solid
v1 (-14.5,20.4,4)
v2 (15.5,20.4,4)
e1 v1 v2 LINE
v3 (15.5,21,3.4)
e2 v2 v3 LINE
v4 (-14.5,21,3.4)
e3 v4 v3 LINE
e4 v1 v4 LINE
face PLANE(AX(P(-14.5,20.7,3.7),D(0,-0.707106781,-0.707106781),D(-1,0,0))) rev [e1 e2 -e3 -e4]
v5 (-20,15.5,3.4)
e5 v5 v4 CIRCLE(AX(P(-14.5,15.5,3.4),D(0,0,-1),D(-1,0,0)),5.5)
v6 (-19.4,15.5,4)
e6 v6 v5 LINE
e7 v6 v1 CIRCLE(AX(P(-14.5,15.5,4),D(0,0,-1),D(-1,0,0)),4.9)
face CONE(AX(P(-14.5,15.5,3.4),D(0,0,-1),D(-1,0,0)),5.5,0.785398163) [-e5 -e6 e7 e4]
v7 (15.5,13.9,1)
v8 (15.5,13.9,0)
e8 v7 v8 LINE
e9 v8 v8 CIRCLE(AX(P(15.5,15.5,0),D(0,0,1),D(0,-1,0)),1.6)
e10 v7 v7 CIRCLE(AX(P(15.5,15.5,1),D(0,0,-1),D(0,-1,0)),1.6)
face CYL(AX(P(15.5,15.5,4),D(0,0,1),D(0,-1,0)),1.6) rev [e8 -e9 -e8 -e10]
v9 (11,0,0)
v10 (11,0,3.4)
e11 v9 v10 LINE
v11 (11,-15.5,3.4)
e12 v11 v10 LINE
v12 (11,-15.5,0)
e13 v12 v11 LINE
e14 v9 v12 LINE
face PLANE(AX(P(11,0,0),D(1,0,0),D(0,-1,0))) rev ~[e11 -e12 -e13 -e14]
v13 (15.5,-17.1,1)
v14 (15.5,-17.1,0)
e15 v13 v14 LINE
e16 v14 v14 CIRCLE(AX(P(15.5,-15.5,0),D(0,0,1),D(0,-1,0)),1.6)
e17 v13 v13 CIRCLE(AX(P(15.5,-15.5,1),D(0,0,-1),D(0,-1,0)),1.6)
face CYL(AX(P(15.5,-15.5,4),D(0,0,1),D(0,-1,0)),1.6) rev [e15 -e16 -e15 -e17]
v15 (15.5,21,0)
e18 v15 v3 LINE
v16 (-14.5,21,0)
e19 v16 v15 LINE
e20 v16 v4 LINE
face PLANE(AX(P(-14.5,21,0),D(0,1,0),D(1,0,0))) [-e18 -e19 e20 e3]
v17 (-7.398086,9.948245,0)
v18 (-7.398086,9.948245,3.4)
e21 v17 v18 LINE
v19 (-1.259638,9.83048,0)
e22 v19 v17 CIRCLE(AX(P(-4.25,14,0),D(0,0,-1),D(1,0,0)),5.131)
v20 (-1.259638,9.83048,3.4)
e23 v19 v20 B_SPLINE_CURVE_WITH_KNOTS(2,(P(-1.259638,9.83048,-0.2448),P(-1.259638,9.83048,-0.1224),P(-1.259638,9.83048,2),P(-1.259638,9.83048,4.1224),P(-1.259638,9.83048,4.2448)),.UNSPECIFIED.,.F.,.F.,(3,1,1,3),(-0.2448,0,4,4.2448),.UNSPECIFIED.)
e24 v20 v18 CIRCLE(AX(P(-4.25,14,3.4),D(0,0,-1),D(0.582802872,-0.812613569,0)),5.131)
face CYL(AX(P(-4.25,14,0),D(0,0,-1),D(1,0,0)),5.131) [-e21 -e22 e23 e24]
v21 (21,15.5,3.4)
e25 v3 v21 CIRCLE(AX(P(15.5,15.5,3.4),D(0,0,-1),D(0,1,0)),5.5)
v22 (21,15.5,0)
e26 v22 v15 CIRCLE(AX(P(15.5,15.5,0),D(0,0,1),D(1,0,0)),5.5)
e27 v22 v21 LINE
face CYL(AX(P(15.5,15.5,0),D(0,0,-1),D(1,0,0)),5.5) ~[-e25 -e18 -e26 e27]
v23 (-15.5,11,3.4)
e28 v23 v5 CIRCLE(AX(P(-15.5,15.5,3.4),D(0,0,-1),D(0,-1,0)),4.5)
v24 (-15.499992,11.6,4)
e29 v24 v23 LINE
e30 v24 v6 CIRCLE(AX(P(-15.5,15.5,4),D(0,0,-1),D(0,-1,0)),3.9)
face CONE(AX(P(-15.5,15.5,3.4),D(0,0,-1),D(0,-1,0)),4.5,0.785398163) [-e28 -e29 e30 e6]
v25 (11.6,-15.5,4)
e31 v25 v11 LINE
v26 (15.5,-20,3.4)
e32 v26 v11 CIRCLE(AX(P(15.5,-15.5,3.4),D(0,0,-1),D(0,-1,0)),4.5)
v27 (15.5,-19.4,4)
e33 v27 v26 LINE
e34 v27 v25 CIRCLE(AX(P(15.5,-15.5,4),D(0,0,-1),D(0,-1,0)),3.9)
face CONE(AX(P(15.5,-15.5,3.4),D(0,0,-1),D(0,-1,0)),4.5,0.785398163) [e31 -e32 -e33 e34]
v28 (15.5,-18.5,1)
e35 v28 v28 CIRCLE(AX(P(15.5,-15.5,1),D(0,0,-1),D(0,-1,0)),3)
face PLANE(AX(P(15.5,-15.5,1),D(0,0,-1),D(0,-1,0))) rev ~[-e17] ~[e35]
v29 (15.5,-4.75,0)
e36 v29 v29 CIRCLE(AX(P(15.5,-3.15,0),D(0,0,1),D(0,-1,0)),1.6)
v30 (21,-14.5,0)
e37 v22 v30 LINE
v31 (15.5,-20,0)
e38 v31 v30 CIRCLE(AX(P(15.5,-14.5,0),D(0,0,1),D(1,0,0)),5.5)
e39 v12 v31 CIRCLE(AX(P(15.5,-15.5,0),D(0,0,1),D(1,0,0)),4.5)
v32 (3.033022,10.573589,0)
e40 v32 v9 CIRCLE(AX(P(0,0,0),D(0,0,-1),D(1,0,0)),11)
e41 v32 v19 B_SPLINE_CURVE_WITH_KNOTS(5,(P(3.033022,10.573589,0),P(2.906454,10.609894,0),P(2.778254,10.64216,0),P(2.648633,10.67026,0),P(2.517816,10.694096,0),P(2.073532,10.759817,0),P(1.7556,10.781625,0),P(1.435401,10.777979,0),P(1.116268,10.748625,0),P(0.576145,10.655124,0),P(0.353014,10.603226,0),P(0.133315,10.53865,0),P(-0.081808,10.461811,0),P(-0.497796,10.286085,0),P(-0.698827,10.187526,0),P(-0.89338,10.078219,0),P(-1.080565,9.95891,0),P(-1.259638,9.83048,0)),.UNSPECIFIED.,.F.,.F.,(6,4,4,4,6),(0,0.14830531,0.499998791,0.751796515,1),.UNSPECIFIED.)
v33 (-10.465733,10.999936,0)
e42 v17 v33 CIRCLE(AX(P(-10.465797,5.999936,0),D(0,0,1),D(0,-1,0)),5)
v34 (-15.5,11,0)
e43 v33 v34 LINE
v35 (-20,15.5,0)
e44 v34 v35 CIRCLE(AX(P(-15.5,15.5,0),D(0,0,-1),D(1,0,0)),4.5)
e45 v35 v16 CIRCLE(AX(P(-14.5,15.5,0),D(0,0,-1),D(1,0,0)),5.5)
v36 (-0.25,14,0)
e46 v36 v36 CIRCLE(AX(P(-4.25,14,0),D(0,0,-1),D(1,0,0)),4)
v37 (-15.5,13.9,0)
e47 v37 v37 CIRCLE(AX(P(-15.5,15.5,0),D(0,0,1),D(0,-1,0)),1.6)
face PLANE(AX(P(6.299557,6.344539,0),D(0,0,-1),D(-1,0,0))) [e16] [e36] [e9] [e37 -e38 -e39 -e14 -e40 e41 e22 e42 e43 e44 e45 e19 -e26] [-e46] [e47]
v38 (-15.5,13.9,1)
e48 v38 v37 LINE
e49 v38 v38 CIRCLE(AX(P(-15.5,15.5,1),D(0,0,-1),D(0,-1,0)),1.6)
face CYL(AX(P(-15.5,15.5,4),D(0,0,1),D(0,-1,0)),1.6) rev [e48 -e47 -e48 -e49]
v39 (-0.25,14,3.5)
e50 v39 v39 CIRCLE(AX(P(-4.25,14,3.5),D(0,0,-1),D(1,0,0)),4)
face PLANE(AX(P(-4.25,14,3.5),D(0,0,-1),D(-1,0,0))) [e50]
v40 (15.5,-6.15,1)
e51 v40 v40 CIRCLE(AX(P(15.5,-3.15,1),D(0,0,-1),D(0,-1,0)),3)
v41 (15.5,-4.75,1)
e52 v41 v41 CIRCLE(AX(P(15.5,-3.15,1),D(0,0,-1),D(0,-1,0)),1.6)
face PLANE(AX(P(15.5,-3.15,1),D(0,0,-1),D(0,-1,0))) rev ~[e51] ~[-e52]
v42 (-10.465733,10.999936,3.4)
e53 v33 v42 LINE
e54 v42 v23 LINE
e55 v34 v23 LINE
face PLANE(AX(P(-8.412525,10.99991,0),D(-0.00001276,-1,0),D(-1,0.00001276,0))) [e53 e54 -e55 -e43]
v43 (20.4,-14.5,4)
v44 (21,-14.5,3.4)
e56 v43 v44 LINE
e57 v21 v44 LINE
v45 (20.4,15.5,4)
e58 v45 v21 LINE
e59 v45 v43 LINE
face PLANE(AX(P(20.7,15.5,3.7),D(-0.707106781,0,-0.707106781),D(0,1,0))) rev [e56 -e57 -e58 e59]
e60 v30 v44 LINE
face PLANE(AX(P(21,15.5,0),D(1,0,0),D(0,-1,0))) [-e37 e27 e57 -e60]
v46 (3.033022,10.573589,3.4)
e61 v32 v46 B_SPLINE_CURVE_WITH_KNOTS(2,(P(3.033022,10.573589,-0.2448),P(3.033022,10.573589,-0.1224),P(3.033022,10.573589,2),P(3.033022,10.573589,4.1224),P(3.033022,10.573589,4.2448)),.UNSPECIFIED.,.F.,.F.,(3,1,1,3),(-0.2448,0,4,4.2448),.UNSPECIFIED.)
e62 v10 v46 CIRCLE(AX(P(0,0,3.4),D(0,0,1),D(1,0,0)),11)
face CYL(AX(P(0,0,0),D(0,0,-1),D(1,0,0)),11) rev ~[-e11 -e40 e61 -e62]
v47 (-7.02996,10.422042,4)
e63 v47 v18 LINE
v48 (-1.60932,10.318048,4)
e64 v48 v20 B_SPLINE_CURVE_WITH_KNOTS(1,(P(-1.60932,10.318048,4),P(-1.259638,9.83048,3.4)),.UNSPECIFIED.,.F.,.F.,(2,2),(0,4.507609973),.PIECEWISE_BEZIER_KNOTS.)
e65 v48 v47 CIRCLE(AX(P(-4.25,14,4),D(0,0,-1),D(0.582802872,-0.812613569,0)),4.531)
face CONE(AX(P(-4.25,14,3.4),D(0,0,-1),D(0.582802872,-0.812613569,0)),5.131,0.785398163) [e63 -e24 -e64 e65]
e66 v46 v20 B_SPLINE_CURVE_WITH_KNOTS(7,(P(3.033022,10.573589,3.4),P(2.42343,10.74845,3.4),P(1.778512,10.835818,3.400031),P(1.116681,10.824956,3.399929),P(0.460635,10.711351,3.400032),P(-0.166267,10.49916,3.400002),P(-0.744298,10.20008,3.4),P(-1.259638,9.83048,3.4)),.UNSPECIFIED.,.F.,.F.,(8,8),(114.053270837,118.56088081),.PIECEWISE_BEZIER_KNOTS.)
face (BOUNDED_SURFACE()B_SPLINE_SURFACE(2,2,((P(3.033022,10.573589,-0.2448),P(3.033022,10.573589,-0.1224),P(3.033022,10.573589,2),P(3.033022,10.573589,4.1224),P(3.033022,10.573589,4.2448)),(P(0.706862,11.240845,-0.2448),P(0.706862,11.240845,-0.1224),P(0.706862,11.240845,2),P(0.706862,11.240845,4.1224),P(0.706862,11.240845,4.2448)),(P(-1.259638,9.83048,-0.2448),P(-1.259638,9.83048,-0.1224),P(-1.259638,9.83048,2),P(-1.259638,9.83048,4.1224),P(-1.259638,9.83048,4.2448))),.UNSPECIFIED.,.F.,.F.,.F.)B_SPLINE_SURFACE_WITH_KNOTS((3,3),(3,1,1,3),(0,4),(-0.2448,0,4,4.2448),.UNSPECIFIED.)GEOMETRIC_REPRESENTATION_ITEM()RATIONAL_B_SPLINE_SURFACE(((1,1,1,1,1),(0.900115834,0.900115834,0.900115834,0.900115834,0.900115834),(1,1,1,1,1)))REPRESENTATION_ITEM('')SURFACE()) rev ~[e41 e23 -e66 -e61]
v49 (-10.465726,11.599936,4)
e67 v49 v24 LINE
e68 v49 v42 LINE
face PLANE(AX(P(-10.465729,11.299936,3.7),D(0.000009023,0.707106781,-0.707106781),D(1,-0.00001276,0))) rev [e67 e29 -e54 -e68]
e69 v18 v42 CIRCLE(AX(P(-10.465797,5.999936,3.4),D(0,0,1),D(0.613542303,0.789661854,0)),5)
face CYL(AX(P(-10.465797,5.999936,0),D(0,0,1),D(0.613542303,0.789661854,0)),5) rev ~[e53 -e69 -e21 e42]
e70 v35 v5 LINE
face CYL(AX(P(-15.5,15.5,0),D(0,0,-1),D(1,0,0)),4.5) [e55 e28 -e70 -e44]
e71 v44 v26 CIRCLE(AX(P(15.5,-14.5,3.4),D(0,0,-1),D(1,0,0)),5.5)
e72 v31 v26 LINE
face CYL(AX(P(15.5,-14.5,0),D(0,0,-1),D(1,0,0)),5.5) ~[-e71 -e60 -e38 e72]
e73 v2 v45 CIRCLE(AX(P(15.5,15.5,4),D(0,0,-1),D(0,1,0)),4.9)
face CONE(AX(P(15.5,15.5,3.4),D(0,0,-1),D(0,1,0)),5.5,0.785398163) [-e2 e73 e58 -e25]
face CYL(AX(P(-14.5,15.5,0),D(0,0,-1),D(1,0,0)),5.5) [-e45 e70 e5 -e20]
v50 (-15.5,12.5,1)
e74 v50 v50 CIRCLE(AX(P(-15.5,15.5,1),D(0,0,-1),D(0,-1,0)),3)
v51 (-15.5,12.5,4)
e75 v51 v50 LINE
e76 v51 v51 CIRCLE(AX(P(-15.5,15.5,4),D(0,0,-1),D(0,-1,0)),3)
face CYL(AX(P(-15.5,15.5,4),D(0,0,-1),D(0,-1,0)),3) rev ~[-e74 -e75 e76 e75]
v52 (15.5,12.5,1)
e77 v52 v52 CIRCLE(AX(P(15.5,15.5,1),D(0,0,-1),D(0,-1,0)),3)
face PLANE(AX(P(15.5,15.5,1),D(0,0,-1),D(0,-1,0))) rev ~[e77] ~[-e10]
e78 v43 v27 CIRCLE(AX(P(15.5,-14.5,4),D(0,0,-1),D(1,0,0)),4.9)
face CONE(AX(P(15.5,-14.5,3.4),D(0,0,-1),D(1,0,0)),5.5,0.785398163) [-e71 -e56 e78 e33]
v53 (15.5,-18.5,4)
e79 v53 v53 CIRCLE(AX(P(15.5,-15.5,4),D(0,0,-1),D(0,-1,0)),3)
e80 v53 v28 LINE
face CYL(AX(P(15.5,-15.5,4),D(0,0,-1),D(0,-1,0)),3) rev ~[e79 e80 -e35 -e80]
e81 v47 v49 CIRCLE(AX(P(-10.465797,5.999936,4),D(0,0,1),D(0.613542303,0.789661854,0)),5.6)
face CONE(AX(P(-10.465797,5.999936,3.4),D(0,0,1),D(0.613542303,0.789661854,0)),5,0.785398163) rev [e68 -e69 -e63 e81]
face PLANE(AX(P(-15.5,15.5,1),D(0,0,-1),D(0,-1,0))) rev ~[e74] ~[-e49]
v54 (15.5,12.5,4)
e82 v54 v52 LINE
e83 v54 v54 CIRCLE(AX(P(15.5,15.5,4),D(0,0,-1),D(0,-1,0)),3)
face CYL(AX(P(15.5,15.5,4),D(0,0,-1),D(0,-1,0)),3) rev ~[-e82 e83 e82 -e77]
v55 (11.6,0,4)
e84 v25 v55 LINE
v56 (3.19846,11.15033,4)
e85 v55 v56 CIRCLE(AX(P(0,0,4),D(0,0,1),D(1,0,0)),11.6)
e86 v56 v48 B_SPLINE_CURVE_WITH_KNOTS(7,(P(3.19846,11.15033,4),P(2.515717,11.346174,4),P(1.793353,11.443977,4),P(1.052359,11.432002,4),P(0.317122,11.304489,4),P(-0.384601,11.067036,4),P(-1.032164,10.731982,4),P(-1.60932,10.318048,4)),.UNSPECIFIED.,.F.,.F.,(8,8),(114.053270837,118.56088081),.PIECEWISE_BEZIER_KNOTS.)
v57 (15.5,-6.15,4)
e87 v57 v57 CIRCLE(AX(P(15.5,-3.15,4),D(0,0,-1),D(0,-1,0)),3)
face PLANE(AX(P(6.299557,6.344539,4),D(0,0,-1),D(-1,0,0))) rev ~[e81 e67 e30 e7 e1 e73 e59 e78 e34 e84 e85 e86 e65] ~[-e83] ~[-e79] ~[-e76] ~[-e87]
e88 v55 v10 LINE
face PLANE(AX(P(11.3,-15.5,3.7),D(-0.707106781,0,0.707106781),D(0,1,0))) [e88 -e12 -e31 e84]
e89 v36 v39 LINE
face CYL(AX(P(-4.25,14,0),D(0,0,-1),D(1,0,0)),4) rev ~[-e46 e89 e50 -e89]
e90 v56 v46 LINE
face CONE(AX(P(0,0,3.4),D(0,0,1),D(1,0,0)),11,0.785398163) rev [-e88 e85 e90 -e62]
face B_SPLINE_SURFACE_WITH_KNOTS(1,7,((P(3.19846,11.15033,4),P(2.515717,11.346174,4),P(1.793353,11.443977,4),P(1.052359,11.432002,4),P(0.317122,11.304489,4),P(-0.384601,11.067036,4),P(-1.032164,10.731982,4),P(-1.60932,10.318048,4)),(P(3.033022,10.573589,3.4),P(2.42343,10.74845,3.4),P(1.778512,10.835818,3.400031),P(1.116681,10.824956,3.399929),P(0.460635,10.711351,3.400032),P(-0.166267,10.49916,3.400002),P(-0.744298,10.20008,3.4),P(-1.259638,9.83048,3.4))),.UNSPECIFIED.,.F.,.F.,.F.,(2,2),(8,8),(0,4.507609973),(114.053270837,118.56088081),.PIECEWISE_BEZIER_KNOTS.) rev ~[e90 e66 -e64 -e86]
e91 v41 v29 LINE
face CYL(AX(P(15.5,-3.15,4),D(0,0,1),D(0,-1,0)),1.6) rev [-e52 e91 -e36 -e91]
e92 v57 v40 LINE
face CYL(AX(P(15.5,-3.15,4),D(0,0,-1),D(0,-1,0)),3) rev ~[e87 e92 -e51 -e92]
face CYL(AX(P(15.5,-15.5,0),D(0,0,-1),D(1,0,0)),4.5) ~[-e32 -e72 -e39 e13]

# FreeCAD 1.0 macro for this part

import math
import FreeCAD as App
import Part
import Sketcher

V = App.Vector
Q = App.Units.Quantity


def edges_at(feature, points):
    """Names of the edges that pass closest to the given points."""
    edges = feature.Shape.Edges
    near = lambda p: min(range(len(edges)), key=lambda i: edges[i].distToShape(Part.Vertex(*p))[0])
    return sorted({f"Edge{near(p) + 1}" for p in points})

doc = App.newDocument("Part")
params = doc.addObject("Spreadsheet::Sheet", "Params")
for row, (alias, value) in enumerate([
    ("sketch1_radius", "11 mm"),
    ("sketch1_radius2", "5.5 mm"),
    ("sketch1_radius3", "4.5 mm"),
    ("pad1_length", "4 mm"),
    ("fillet_radius", "5 mm"),
    ("sketch2_diameter", "8 mm"),
    ("pocket1_length", "3.5 mm"),
    ("sketch3_diameter", "3.2 mm"),
    ("hole_diameter", "3.2 mm"),
    ("hole_cbore_diameter", "6 mm"),
    ("hole_cbore_depth", "3 mm"),
    ("sketch4_diameter", "3.2 mm"),
    ("hole2_diameter", "3.2 mm"),
    ("hole2_cbore_diameter", "6 mm"),
    ("hole2_cbore_depth", "3 mm"),
    ("sketch5_diameter", "3.2 mm"),
    ("hole3_diameter", "3.2 mm"),
    ("hole3_cbore_diameter", "6 mm"),
    ("hole3_cbore_depth", "3 mm"),
    ("sketch6_diameter", "3.2 mm"),
    ("hole4_diameter", "3.2 mm"),
    ("hole4_cbore_diameter", "6 mm"),
    ("hole4_cbore_depth", "3 mm"),
    ("chamfer_size", "0.6 mm"),
], start=1):
    params.set(f"A{row}", alias)
    params.set(f"B{row}", "=" + value)
    params.setAlias(f"B{row}", alias)

body = doc.addObject("PartDesign::Body", "Body")

# Sketch on XY plane
sketch1 = body.newObject("Sketcher::SketchObject", "Sketch")
sketch1.AttachmentSupport = (doc.getObject("XY_Plane"), [""])
sketch1.MapMode = "FlatFace"
sketch1.addGeometry([
    Part.LineSegment(V(21, -14.5, 0), V(21, 15.5, 0)),  # 0
    Part.ArcOfCircle(Part.Circle(V(15.5, 15.5, 0), V(0, 0, 1), 5.5), math.radians(0), math.radians(90)),  # 1
    Part.LineSegment(V(15.5, 21, 0), V(-14.5, 21, 0)),  # 2
    Part.ArcOfCircle(Part.Circle(V(-14.5, 15.5, 0), V(0, 0, 1), 5.5), math.radians(90), math.radians(180)),  # 3
    Part.ArcOfCircle(Part.Circle(V(-15.5, 15.5, 0), V(0, 0, 1), 4.5), math.radians(180), math.radians(270)),  # 4
    Part.LineSegment(V(-15.5, 11, 0), V(-8.4, 11, 0)),  # 5
    Part.ArcOfCircle(Part.Circle(V(-4.2, 14, 0), V(0, 0, 1), 5.1), math.radians(-144), math.radians(-36)),  # 6
    Part.ArcOfCircle(Part.Circle(V(0, 0, 0), V(0, 0, 1), 11), math.radians(0), math.radians(90)),  # 7
    Part.LineSegment(V(11, 0, 0), V(11, -15.5, 0)),  # 8
    Part.ArcOfCircle(Part.Circle(V(15.5, -15.5, 0), V(0, 0, 1), 4.5), math.radians(180), math.radians(270)),  # 9
    Part.ArcOfCircle(Part.Circle(V(15.5, -14.5, 0), V(0, 0, 1), 5.5), math.radians(-90), math.radians(0)),  # 10
], False)
sketch1.addConstraint([
    Sketcher.Constraint("Tangent", 0, 2, 1, 1),
    Sketcher.Constraint("Tangent", 1, 2, 2, 1),
    Sketcher.Constraint("Tangent", 2, 2, 3, 1),
    Sketcher.Constraint("Tangent", 3, 2, 4, 1),
    Sketcher.Constraint("Tangent", 4, 2, 5, 1),
    Sketcher.Constraint("Coincident", 5, 2, 6, 1),
    Sketcher.Constraint("Coincident", 6, 2, 7, 2),
    Sketcher.Constraint("Tangent", 7, 1, 8, 1),
    Sketcher.Constraint("Tangent", 8, 2, 9, 1),
    Sketcher.Constraint("Tangent", 9, 2, 10, 1),
    Sketcher.Constraint("Tangent", 10, 2, 0, 1),
    Sketcher.Constraint("Vertical", 0),
    Sketcher.Constraint("Horizontal", 2),
    Sketcher.Constraint("Horizontal", 5),
    Sketcher.Constraint("Vertical", 8),
    Sketcher.Constraint("Coincident", 7, 3, -1, 1),
    Sketcher.Constraint("Equal", 1, 3),
    Sketcher.Constraint("Equal", 4, 9),
    Sketcher.Constraint("Equal", 3, 10),
    Sketcher.Constraint("Symmetric", 4, 3, 9, 3, -1, 1),
    Sketcher.Constraint("Symmetric", 1, 3, 4, 3, -2),
    Sketcher.Constraint("Equal", 2, 0),
    Sketcher.Constraint("Radius", 7, Q("11 mm")),
    Sketcher.Constraint("Radius", 1, Q("5.5 mm")),
    Sketcher.Constraint("Radius", 4, Q("4.5 mm")),
    Sketcher.Constraint("DistanceY", -1, 1, 6, 3, Q("14 mm")),
    Sketcher.Constraint("Radius", 6, Q("5.131 mm")),
    Sketcher.Constraint("DistanceX", 6, 3, -1, 1, Q("4.25 mm")),
])
sketch1.setExpression("Constraints[22]", "Params.sketch1_radius")
sketch1.setExpression("Constraints[23]", "Params.sketch1_radius2")
sketch1.setExpression("Constraints[24]", "Params.sketch1_radius3")
pad1 = body.newObject("PartDesign::Pad", "Pad")
pad1.Profile = sketch1
pad1.setExpression("Length", "Params.pad1_length")
doc.recompute()

fillet = body.newObject("PartDesign::Fillet", "Fillet")
fillet.Base = (pad1, edges_at(pad1, [(-0.088, 11, 2), (-8.412, 11, 2)]))
fillet.setExpression("Radius", "Params.fillet_radius")

# Sketch on XY plane
sketch2 = body.newObject("Sketcher::SketchObject", "Sketch001")
sketch2.AttachmentSupport = (doc.getObject("XY_Plane"), [""])
sketch2.MapMode = "FlatFace"
sketch2.addGeometry(Part.Circle(V(-4.2, 14, 0), V(0, 0, 1), 4), False)
sketch2.addConstraint([
    Sketcher.Constraint("Diameter", 0, Q("8 mm")),
    Sketcher.Constraint("DistanceY", -1, 1, 0, 3, Q("14 mm")),
    Sketcher.Constraint("DistanceX", 0, 3, -1, 1, Q("4.25 mm")),
])
sketch2.setExpression("Constraints[0]", "Params.sketch2_diameter")
pocket1 = body.newObject("PartDesign::Pocket", "Pocket")
pocket1.Profile = sketch2
pocket1.setExpression("Length", "Params.pocket1_length")
pocket1.Reversed = True

# Sketch on XY plane
sketch3 = body.newObject("Sketcher::SketchObject", "Sketch002")
sketch3.AttachmentSupport = (doc.getObject("XY_Plane"), [""])
sketch3.MapMode = "FlatFace"
sketch3.AttachmentOffset = App.Placement(V(0, 0, 4), App.Rotation())
sketch3.addGeometry(Part.Circle(V(-15.5, 15.5, 0), V(0, 0, 1), 1.6), False)
sketch3.addConstraint([
    Sketcher.Constraint("Diameter", 0, Q("3.2 mm")),
    Sketcher.Constraint("DistanceX", 0, 3, -1, 1, Q("15.5 mm")),
    Sketcher.Constraint("DistanceY", -1, 1, 0, 3, Q("15.5 mm")),
])
sketch3.setExpression("Constraints[0]", "Params.sketch3_diameter")
doc.recompute()
hole = body.newObject("PartDesign::Hole", "Hole")
hole.Profile = sketch3
hole.ThreadType = "None"
hole.setExpression("Diameter", "Params.hole_diameter")
hole.DepthType = "ThroughAll"
hole.HoleCutType = "Counterbore"
hole.setExpression("HoleCutDiameter", "Params.hole_cbore_diameter")
hole.setExpression("HoleCutDepth", "Params.hole_cbore_depth")

# Sketch on XY plane
sketch4 = body.newObject("Sketcher::SketchObject", "Sketch003")
sketch4.AttachmentSupport = (doc.getObject("XY_Plane"), [""])
sketch4.MapMode = "FlatFace"
sketch4.AttachmentOffset = App.Placement(V(0, 0, 4), App.Rotation())
sketch4.addGeometry(Part.Circle(V(15.5, 15.5, 0), V(0, 0, 1), 1.6), False)
sketch4.addConstraint([
    Sketcher.Constraint("Diameter", 0, Q("3.2 mm")),
    Sketcher.Constraint("DistanceX", -1, 1, 0, 3, Q("15.5 mm")),
    Sketcher.Constraint("DistanceY", -1, 1, 0, 3, Q("15.5 mm")),
])
sketch4.setExpression("Constraints[0]", "Params.sketch4_diameter")
doc.recompute()
hole2 = body.newObject("PartDesign::Hole", "Hole001")
hole2.Profile = sketch4
hole2.ThreadType = "None"
hole2.setExpression("Diameter", "Params.hole2_diameter")
hole2.DepthType = "ThroughAll"
hole2.HoleCutType = "Counterbore"
hole2.setExpression("HoleCutDiameter", "Params.hole2_cbore_diameter")
hole2.setExpression("HoleCutDepth", "Params.hole2_cbore_depth")

# Sketch on XY plane
sketch5 = body.newObject("Sketcher::SketchObject", "Sketch004")
sketch5.AttachmentSupport = (doc.getObject("XY_Plane"), [""])
sketch5.MapMode = "FlatFace"
sketch5.AttachmentOffset = App.Placement(V(0, 0, 4), App.Rotation())
sketch5.addGeometry(Part.Circle(V(15.5, -3.1, 0), V(0, 0, 1), 1.6), False)
sketch5.addConstraint([
    Sketcher.Constraint("Diameter", 0, Q("3.2 mm")),
    Sketcher.Constraint("DistanceX", -1, 1, 0, 3, Q("15.5 mm")),
    Sketcher.Constraint("DistanceY", 0, 3, -1, 1, Q("3.15 mm")),
])
sketch5.setExpression("Constraints[0]", "Params.sketch5_diameter")
doc.recompute()
hole3 = body.newObject("PartDesign::Hole", "Hole002")
hole3.Profile = sketch5
hole3.ThreadType = "None"
hole3.setExpression("Diameter", "Params.hole3_diameter")
hole3.DepthType = "ThroughAll"
hole3.HoleCutType = "Counterbore"
hole3.setExpression("HoleCutDiameter", "Params.hole3_cbore_diameter")
hole3.setExpression("HoleCutDepth", "Params.hole3_cbore_depth")

# Sketch on XY plane
sketch6 = body.newObject("Sketcher::SketchObject", "Sketch005")
sketch6.AttachmentSupport = (doc.getObject("XY_Plane"), [""])
sketch6.MapMode = "FlatFace"
sketch6.AttachmentOffset = App.Placement(V(0, 0, 4), App.Rotation())
sketch6.addGeometry(Part.Circle(V(15.5, -15.5, 0), V(0, 0, 1), 1.6), False)
sketch6.addConstraint([
    Sketcher.Constraint("Diameter", 0, Q("3.2 mm")),
    Sketcher.Constraint("DistanceX", -1, 1, 0, 3, Q("15.5 mm")),
    Sketcher.Constraint("DistanceY", 0, 3, -1, 1, Q("15.5 mm")),
])
sketch6.setExpression("Constraints[0]", "Params.sketch6_diameter")
doc.recompute()
hole4 = body.newObject("PartDesign::Hole", "Hole003")
hole4.Profile = sketch6
hole4.ThreadType = "None"
hole4.setExpression("Diameter", "Params.hole4_diameter")
hole4.DepthType = "ThroughAll"
hole4.HoleCutType = "Counterbore"
hole4.setExpression("HoleCutDiameter", "Params.hole4_cbore_diameter")
hole4.setExpression("HoleCutDepth", "Params.hole4_cbore_depth")
doc.recompute()

chamfer = body.newObject("PartDesign::Chamfer", "Chamfer")
chamfer.Base = (hole4, edges_at(hole4, [
    (0.5, 21, 4),
    (19.389, 19.389, 4),
    (21, 0.5, 4),
    (19.389, -18.389, 4),
    (12.318, -18.682, 4),
    (11, -7.75, 4),
    (8.785, 6.62, 4),
    (0.801, 10.694, 4),
    (-4.348, 8.87, 4),
    (-8.844, 10.73, 4),
    (-12.983, 11, 4),
    (-18.682, 12.318, 4),
    (-18.389, 19.389, 4),
]))
chamfer.setExpression("Size", "Params.chamfer_size")

doc.recompute()
